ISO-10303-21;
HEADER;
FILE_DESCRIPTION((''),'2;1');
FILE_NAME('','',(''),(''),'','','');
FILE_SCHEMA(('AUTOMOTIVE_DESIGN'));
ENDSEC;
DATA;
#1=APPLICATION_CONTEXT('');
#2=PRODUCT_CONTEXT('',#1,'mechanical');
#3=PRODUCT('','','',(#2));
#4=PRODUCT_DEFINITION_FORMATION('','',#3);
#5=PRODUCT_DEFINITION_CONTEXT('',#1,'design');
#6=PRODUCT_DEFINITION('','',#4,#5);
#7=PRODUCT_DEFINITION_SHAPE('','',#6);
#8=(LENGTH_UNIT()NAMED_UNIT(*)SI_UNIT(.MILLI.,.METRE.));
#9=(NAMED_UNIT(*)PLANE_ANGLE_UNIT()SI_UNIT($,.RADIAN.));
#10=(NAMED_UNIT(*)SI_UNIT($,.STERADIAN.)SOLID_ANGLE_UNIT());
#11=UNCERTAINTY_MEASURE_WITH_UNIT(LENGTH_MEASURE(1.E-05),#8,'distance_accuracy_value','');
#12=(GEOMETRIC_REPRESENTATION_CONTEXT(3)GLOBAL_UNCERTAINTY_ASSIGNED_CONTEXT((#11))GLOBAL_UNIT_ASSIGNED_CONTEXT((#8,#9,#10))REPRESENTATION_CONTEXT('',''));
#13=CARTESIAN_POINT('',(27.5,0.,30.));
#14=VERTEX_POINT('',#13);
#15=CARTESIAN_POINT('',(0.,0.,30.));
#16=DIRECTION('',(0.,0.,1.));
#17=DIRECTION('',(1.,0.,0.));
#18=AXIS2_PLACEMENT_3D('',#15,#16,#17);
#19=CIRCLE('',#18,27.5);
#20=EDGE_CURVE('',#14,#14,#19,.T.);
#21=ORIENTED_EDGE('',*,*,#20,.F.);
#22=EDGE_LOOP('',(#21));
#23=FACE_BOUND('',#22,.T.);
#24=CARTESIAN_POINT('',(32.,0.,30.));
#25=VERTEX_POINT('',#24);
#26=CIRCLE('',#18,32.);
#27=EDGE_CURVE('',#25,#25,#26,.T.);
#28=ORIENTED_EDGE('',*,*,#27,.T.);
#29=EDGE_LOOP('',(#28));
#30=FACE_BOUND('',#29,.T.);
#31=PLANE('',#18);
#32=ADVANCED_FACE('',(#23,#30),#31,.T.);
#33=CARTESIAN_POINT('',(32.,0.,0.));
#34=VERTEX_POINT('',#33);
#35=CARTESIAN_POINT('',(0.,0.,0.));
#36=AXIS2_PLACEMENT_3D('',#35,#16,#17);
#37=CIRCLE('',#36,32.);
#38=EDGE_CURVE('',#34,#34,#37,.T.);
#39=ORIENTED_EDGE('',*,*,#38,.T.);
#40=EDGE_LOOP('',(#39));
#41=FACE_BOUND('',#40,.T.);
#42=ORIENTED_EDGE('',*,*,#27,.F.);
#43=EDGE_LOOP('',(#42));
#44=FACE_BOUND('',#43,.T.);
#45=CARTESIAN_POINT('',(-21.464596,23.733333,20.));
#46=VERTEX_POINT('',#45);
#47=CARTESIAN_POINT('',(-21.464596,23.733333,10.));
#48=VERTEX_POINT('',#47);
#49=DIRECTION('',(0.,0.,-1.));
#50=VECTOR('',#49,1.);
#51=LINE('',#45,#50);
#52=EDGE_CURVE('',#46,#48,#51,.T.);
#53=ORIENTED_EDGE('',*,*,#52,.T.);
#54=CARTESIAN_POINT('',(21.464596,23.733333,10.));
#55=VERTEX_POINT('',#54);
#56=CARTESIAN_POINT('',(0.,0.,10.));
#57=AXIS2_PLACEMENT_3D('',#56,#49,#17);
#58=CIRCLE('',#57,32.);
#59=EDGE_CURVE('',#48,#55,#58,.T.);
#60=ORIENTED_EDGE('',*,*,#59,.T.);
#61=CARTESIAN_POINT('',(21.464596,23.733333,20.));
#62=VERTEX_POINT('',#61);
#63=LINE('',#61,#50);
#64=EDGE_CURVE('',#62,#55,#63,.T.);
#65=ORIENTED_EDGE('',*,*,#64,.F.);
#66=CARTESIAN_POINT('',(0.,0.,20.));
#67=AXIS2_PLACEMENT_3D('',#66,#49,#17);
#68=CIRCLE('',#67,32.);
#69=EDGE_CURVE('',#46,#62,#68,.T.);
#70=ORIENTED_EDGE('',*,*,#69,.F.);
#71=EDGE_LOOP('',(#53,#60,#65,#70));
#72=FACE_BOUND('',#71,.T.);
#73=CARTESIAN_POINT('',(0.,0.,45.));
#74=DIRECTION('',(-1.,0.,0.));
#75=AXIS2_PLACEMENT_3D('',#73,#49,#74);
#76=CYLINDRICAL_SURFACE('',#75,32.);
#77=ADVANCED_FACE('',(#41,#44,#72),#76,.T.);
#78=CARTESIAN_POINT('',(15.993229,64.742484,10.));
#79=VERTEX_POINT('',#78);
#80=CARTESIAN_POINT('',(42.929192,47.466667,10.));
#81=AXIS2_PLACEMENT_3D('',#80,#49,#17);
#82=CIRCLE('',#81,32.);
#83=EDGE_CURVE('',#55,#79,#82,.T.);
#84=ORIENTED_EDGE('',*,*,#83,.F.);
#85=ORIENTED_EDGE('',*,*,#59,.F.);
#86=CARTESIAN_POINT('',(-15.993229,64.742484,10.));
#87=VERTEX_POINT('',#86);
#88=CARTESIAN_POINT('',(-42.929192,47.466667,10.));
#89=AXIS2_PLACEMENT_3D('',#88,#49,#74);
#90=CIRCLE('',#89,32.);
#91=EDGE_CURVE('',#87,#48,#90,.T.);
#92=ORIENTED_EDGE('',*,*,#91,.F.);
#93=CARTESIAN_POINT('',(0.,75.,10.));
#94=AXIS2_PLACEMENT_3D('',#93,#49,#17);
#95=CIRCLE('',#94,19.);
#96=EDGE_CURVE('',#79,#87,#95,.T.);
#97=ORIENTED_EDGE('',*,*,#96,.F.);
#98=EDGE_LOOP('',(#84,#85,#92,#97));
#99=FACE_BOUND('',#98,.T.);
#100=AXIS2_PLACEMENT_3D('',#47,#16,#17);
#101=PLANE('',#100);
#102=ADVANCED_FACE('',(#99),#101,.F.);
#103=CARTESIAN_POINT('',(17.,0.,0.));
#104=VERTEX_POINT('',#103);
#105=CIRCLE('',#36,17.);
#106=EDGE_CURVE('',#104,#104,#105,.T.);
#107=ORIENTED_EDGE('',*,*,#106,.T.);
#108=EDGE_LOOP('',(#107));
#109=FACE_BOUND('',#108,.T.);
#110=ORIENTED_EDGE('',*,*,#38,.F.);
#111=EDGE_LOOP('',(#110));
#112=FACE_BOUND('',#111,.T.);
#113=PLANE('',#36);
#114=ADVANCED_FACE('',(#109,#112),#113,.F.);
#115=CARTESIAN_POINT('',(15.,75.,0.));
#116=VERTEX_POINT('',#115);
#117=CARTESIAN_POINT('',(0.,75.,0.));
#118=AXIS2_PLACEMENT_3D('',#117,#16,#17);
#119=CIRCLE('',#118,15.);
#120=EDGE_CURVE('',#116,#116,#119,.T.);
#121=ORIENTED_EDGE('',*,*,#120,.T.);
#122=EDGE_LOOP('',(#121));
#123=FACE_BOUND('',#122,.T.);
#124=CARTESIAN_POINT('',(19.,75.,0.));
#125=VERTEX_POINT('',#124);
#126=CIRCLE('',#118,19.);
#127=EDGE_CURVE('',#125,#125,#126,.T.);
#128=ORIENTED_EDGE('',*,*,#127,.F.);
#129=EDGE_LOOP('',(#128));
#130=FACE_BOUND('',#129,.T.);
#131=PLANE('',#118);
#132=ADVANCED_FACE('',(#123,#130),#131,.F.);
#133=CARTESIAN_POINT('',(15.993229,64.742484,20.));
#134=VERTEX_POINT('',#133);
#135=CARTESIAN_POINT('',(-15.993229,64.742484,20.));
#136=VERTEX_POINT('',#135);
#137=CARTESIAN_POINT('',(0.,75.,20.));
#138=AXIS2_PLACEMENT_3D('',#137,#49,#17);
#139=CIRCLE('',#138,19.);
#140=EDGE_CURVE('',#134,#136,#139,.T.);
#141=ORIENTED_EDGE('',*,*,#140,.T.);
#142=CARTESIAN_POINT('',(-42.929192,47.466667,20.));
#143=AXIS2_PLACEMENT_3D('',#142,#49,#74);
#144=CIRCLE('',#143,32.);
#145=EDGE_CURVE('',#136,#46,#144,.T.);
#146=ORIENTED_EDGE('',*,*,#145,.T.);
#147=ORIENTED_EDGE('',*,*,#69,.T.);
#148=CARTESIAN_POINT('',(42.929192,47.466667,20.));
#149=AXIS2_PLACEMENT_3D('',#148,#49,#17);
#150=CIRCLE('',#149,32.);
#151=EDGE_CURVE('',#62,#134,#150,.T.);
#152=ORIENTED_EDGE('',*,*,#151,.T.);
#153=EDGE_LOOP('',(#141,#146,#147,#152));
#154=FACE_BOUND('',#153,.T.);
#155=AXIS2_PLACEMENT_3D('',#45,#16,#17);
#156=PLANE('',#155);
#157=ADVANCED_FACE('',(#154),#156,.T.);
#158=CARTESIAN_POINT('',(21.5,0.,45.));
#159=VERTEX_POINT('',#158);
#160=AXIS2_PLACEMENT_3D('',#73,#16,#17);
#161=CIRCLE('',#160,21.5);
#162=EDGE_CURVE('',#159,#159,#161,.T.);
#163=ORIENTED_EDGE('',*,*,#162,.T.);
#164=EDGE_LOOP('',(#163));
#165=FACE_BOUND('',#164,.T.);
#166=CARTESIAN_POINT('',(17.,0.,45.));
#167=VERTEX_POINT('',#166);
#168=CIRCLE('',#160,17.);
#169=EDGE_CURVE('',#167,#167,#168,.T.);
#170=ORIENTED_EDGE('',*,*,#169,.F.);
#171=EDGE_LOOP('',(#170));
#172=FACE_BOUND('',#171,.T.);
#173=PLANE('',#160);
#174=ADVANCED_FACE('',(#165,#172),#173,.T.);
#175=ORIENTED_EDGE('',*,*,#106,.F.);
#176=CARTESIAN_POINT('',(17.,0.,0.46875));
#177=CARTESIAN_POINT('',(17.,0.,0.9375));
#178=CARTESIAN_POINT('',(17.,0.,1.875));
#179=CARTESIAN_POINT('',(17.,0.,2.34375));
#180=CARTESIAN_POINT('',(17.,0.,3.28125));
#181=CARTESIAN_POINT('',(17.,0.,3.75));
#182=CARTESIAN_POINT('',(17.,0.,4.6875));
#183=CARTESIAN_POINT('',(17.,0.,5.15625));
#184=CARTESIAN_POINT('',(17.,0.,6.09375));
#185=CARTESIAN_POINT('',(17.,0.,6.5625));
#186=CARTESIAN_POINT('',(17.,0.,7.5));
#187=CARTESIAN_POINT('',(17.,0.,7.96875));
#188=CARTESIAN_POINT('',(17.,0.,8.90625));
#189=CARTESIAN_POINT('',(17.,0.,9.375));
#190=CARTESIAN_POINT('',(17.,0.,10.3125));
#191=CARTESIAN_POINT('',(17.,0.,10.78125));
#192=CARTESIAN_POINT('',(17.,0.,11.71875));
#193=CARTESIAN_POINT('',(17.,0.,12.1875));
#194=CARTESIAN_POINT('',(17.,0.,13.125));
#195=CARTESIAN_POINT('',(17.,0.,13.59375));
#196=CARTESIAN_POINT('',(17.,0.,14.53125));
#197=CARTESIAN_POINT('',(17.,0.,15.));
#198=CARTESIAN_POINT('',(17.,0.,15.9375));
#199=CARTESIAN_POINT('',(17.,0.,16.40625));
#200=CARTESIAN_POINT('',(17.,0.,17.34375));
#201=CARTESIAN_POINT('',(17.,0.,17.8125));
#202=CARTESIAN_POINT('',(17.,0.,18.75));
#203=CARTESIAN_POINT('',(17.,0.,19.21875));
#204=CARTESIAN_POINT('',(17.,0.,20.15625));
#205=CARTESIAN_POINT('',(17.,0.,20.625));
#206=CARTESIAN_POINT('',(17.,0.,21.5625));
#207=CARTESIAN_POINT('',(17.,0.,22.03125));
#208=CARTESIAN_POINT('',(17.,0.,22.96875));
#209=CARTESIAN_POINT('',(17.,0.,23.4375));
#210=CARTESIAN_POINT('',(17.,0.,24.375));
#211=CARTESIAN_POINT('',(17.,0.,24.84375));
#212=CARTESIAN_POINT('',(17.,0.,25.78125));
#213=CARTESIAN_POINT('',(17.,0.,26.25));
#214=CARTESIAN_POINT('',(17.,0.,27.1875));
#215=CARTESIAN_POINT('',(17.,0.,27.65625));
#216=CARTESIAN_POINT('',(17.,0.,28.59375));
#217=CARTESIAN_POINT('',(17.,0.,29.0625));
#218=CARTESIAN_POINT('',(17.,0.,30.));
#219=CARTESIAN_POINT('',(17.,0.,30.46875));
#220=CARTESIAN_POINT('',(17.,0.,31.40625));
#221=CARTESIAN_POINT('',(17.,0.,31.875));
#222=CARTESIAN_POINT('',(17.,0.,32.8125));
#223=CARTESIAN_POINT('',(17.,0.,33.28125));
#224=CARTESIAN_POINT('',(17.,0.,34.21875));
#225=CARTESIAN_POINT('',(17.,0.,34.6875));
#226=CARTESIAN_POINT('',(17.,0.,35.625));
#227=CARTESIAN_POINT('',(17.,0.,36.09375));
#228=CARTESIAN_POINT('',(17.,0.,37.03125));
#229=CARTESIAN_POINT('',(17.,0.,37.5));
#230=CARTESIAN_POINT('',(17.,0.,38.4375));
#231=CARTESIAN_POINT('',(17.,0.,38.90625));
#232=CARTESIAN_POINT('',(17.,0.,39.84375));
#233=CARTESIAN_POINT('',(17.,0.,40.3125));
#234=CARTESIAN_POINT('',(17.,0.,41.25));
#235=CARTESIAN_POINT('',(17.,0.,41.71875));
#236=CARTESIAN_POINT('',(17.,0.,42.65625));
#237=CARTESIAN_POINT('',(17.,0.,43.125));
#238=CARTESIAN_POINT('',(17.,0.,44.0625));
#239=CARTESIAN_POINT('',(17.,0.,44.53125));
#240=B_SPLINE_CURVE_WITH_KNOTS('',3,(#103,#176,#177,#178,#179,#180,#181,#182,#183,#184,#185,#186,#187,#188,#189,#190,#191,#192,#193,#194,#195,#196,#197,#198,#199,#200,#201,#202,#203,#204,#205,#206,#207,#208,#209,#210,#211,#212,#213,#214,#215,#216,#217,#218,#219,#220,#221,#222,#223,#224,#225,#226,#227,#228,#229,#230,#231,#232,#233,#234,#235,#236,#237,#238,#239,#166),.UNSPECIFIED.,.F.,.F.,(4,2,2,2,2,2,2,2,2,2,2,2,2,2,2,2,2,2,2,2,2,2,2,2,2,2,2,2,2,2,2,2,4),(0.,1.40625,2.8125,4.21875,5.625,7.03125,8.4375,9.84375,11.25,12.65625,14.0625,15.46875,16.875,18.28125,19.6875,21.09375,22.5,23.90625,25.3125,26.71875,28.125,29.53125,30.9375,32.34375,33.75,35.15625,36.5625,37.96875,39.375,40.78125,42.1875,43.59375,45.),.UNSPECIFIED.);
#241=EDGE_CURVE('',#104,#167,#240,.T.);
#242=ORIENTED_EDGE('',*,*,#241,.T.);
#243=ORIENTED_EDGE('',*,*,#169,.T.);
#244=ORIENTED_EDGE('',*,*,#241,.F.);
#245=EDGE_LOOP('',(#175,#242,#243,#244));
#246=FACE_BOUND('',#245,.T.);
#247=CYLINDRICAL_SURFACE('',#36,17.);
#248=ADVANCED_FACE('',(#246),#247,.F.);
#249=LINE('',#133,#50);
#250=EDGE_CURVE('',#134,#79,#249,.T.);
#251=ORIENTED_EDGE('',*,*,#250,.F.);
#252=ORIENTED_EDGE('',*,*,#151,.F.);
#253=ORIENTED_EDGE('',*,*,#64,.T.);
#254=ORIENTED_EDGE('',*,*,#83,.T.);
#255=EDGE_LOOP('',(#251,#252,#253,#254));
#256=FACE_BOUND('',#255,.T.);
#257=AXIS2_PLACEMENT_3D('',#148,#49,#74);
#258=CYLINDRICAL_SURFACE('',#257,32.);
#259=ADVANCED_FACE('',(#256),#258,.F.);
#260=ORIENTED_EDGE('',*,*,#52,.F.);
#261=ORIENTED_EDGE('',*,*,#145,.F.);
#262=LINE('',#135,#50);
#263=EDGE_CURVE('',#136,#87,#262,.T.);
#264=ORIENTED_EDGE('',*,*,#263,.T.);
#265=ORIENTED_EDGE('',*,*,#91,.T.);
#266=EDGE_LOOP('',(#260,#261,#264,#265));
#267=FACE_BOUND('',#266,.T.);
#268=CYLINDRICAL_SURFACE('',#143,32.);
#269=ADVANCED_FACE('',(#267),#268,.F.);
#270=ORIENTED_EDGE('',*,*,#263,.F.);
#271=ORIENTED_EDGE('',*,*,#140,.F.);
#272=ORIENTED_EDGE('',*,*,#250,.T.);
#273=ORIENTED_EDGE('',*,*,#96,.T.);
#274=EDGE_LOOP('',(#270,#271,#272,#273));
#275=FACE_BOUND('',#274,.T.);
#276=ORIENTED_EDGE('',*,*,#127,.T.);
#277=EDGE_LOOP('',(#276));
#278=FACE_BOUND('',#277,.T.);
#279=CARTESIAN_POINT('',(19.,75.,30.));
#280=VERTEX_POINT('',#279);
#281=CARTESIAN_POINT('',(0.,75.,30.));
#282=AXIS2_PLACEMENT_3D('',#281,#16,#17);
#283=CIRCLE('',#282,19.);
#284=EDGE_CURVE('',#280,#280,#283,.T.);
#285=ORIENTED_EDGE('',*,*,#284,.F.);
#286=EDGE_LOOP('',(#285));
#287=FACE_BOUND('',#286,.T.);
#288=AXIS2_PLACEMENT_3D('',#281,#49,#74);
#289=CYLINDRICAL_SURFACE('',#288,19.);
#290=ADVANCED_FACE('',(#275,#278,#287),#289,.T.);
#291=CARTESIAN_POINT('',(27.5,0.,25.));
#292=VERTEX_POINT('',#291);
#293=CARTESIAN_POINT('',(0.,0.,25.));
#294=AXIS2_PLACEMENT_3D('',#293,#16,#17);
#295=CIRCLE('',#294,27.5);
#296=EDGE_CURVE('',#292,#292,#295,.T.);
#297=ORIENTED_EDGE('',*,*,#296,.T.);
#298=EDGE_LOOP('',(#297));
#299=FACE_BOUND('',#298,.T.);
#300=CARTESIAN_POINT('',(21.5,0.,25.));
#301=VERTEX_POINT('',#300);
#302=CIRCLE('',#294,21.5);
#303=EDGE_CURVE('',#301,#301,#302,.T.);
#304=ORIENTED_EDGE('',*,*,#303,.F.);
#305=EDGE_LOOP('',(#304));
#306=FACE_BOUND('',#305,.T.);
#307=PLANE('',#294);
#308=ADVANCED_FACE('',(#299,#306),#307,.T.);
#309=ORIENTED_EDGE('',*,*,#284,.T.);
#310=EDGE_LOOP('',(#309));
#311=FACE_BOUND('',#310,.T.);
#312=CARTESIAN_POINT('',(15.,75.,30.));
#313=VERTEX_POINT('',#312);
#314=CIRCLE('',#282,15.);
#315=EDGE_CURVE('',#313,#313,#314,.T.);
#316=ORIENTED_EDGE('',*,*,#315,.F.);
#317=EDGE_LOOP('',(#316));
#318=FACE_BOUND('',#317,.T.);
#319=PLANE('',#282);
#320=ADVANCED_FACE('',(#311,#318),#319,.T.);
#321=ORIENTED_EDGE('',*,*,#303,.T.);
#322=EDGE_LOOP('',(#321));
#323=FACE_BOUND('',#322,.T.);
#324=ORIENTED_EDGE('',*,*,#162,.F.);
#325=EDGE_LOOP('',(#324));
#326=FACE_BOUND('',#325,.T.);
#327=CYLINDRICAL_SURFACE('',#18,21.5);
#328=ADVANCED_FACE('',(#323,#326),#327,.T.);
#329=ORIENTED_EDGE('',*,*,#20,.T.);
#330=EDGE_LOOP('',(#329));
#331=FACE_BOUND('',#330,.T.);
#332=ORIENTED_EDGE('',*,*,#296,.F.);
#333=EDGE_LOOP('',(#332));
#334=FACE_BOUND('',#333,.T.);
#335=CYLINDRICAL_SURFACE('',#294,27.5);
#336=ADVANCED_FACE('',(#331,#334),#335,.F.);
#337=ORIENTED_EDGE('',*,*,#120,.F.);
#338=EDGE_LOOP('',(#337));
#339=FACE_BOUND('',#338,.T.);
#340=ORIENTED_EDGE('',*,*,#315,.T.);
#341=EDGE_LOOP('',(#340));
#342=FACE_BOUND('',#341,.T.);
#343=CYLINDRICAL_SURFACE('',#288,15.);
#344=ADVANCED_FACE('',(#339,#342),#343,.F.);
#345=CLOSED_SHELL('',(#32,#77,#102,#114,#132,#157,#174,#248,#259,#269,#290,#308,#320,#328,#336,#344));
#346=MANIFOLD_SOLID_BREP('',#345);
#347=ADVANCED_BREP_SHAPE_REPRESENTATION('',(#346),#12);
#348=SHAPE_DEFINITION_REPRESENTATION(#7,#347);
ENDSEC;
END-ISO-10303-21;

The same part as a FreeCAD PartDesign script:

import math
import FreeCAD as App
import Part
import Sketcher
from FreeCAD import Vector
Q = App.Units.Quantity

doc = App.newDocument("Part")
body = doc.addObject("PartDesign::Body", "Body")

sketch1 = body.newObject("Sketcher::SketchObject", "Sketch")
sketch1.AttachmentSupport = (doc.getObject("XY_Plane"), [""])
sketch1.MapMode = "FlatFace"
sketch1.addGeometry(Part.Circle(Vector(0, 0, 0), Vector(0, 0, 1), 32), False)
sketch1.addConstraint([
    Sketcher.Constraint("Coincident", 0, 3, -1, 1),
    Sketcher.Constraint("Diameter", 0, Q("64 mm")),
])
pad1 = body.newObject("PartDesign::Pad", "Pad")
pad1.Profile = sketch1
pad1.Length = 45

sketch2 = body.newObject("Sketcher::SketchObject", "Sketch001")
sketch2.AttachmentSupport = (doc.getObject("XY_Plane"), [""])
sketch2.MapMode = "FlatFace"
sketch2.AttachmentOffset = App.Placement(Vector(0, 0, 45), App.Rotation())
sketch2.addGeometry(Part.Circle(Vector(0, 0, 0), Vector(0, 0, 1), 17), False)
sketch2.addConstraint([
    Sketcher.Constraint("Coincident", 0, 3, -1, 1),
    Sketcher.Constraint("Diameter", 0, Q("34 mm")),
])
pocket1 = body.newObject("PartDesign::Pocket", "Pocket")
pocket1.Profile = sketch2
pocket1.Length = 45

sketch3 = body.newObject("Sketcher::SketchObject", "Sketch002")
sketch3.AttachmentSupport = (doc.getObject("XY_Plane"), [""])
sketch3.MapMode = "FlatFace"
sketch3.AttachmentOffset = App.Placement(Vector(0, 0, 30), App.Rotation())
sketch3.addGeometry([
    Part.Circle(Vector(0, 0, 0), Vector(0, 0, 1), 32),
    Part.Circle(Vector(0, 0, 0), Vector(0, 0, 1), 22),
], False)
sketch3.addConstraint([
    Sketcher.Constraint("Coincident", 0, 3, -1, 1),
    Sketcher.Constraint("Coincident", 1, 3, -1, 1),
    Sketcher.Constraint("Diameter", 0, Q("64 mm")),
    Sketcher.Constraint("Diameter", 1, Q("43 mm")),
])
pocket2 = body.newObject("PartDesign::Pocket", "Pocket001")
pocket2.Profile = sketch3
pocket2.Length = 15
pocket2.Reversed = True

sketch4 = body.newObject("Sketcher::SketchObject", "Sketch003")
sketch4.AttachmentSupport = (doc.getObject("XY_Plane"), [""])
sketch4.MapMode = "FlatFace"
sketch4.AttachmentOffset = App.Placement(Vector(0, 0, 25), App.Rotation())
sketch4.addGeometry([
    Part.Circle(Vector(0, 0, 0), Vector(0, 0, 1), 28),
    Part.Circle(Vector(0, 0, 0), Vector(0, 0, 1), 22),
], False)
sketch4.addConstraint([
    Sketcher.Constraint("Coincident", 0, 3, -1, 1),
    Sketcher.Constraint("Coincident", 1, 3, -1, 1),
    Sketcher.Constraint("Diameter", 0, Q("55 mm")),
    Sketcher.Constraint("Diameter", 1, Q("43 mm")),
])
pocket3 = body.newObject("PartDesign::Pocket", "Pocket002")
pocket3.Profile = sketch4
pocket3.Length = 5
pocket3.Reversed = True
body2 = doc.addObject("PartDesign::Body", "Body001")

sketch5 = body2.newObject("Sketcher::SketchObject", "Sketch004")
sketch5.AttachmentSupport = (doc.getObject("XY_Plane001"), [""])
sketch5.MapMode = "FlatFace"
sketch5.addGeometry([
    Part.Circle(Vector(0, 75, 0), Vector(0, 0, 1), 19),
    Part.Circle(Vector(0, 75, 0), Vector(0, 0, 1), 15),
], False)
sketch5.addConstraint([
    Sketcher.Constraint("Coincident", 1, 3, 0, 3),
    Sketcher.Constraint("PointOnObject", 0, 3, -2),
    Sketcher.Constraint("Diameter", 0, Q("38 mm")),
    Sketcher.Constraint("Diameter", 1, Q("30 mm")),
    Sketcher.Constraint("DistanceY", -1, 1, 0, 3, Q("75 mm")),
])
pad2 = body2.newObject("PartDesign::Pad", "Pad001")
pad2.Profile = sketch5
pad2.Length = 30
body.AllowCompound = True
doc.recompute()

boolean = body.newObject("PartDesign::Boolean", "Boolean")
boolean.Type = "Fuse"
boolean.addObjects([body2])

sketch6 = body.newObject("Sketcher::SketchObject", "Sketch005")
sketch6.AttachmentSupport = (doc.getObject("XY_Plane"), [""])
sketch6.MapMode = "FlatFace"
sketch6.AttachmentOffset = App.Placement(Vector(0, 0, 10), App.Rotation())
sketch6.addGeometry([
    Part.ArcOfCircle(Part.Circle(Vector(43, 47, 0), Vector(0, 0, 1), 32), math.radians(147), math.radians(228)),
    Part.ArcOfCircle(Part.Circle(Vector(0, 75, 0), Vector(0, 0, 1), 19), math.radians(-147), math.radians(-33)),
    Part.ArcOfCircle(Part.Circle(Vector(-43, 47, 0), Vector(0, 0, 1), 32), math.radians(-48), math.radians(33)),
    Part.ArcOfCircle(Part.Circle(Vector(0, 0, 0), Vector(0, 0, 1), 32), math.radians(48), math.radians(132)),
], False)
sketch6.addConstraint([
    Sketcher.Constraint("Tangent", 0, 1, 1, 2),
    Sketcher.Constraint("Tangent", 1, 1, 2, 2),
    Sketcher.Constraint("Tangent", 2, 1, 3, 2),
    Sketcher.Constraint("Tangent", 3, 1, 0, 2),
    Sketcher.Constraint("Coincident", 3, 3, -1, 1),
    Sketcher.Constraint("Equal", 0, 2),
    Sketcher.Constraint("Equal", 2, 3),
    Sketcher.Constraint("PointOnObject", 1, 3, -2),
    Sketcher.Constraint("Radius", 0, Q("32 mm")),
    Sketcher.Constraint("Radius", 1, Q("19 mm")),
    Sketcher.Constraint("DistanceY", -1, 1, 1, 3, Q("75 mm")),
])
pad3 = body.newObject("PartDesign::Pad", "Pad002")
pad3.Profile = sketch6
pad3.Length = 10

doc.recompute()
